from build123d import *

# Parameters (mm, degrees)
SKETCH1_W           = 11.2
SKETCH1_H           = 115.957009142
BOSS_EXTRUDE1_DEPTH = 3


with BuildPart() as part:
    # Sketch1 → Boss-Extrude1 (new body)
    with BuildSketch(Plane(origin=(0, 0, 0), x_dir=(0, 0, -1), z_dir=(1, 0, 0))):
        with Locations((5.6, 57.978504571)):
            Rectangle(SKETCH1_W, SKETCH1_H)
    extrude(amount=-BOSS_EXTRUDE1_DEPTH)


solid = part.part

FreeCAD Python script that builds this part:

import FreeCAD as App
import Part
import Sketcher
from FreeCAD import Vector

doc = App.newDocument("Part")
params = doc.addObject("Spreadsheet::Sheet", "Params")
for row, (alias, value) in enumerate([
    ("sketch1_height", "11.2 mm"),
    ("pad1_length", "3 mm"),
], start=1):
    params.set(f"A{row}", alias)
    params.set(f"B{row}", "=" + value)
    params.setAlias(f"B{row}", alias)

body = doc.addObject("PartDesign::Body", "Body")

# Sketch on YZ plane
sketch1 = body.newObject("Sketcher::SketchObject", "Sketch")
sketch1.AttachmentSupport = (doc.getObject("YZ_Plane"), [""])
sketch1.MapMode = "FlatFace"
sketch1.addGeometry([
    Part.LineSegment(Vector(116, 0, 0), Vector(0, 0, 0)),
    Part.LineSegment(Vector(0, 0, 0), Vector(0, -11, 0)),
    Part.LineSegment(Vector(0, -11, 0), Vector(116, -11, 0)),
    Part.LineSegment(Vector(116, -11, 0), Vector(116, 0, 0)),
], False)
sketch1.addConstraint([
    Sketcher.Constraint("Coincident", 0, 2, 1, 1),
    Sketcher.Constraint("Coincident", 1, 2, 2, 1),
    Sketcher.Constraint("Coincident", 2, 2, 3, 1),
    Sketcher.Constraint("Coincident", 3, 2, 0, 1),
    Sketcher.Constraint("Horizontal", 0),
    Sketcher.Constraint("Vertical", 1),
    Sketcher.Constraint("Horizontal", 2),
    Sketcher.Constraint("Vertical", 3),
    Sketcher.Constraint("Coincident", 0, 2, -1, 1),
    Sketcher.Constraint("DistanceY", 1, 2, 1, 1, 11.2),
    Sketcher.Constraint("DistanceX", 0, 2, 0, 1, 115.957009),
])
sketch1.setExpression("Constraints[9]", "Params.sketch1_height")
pad1 = body.newObject("PartDesign::Pad", "Pad")
pad1.Profile = sketch1
pad1.setExpression("Length", "Params.pad1_length")
pad1.Reversed = True

doc.recompute()
